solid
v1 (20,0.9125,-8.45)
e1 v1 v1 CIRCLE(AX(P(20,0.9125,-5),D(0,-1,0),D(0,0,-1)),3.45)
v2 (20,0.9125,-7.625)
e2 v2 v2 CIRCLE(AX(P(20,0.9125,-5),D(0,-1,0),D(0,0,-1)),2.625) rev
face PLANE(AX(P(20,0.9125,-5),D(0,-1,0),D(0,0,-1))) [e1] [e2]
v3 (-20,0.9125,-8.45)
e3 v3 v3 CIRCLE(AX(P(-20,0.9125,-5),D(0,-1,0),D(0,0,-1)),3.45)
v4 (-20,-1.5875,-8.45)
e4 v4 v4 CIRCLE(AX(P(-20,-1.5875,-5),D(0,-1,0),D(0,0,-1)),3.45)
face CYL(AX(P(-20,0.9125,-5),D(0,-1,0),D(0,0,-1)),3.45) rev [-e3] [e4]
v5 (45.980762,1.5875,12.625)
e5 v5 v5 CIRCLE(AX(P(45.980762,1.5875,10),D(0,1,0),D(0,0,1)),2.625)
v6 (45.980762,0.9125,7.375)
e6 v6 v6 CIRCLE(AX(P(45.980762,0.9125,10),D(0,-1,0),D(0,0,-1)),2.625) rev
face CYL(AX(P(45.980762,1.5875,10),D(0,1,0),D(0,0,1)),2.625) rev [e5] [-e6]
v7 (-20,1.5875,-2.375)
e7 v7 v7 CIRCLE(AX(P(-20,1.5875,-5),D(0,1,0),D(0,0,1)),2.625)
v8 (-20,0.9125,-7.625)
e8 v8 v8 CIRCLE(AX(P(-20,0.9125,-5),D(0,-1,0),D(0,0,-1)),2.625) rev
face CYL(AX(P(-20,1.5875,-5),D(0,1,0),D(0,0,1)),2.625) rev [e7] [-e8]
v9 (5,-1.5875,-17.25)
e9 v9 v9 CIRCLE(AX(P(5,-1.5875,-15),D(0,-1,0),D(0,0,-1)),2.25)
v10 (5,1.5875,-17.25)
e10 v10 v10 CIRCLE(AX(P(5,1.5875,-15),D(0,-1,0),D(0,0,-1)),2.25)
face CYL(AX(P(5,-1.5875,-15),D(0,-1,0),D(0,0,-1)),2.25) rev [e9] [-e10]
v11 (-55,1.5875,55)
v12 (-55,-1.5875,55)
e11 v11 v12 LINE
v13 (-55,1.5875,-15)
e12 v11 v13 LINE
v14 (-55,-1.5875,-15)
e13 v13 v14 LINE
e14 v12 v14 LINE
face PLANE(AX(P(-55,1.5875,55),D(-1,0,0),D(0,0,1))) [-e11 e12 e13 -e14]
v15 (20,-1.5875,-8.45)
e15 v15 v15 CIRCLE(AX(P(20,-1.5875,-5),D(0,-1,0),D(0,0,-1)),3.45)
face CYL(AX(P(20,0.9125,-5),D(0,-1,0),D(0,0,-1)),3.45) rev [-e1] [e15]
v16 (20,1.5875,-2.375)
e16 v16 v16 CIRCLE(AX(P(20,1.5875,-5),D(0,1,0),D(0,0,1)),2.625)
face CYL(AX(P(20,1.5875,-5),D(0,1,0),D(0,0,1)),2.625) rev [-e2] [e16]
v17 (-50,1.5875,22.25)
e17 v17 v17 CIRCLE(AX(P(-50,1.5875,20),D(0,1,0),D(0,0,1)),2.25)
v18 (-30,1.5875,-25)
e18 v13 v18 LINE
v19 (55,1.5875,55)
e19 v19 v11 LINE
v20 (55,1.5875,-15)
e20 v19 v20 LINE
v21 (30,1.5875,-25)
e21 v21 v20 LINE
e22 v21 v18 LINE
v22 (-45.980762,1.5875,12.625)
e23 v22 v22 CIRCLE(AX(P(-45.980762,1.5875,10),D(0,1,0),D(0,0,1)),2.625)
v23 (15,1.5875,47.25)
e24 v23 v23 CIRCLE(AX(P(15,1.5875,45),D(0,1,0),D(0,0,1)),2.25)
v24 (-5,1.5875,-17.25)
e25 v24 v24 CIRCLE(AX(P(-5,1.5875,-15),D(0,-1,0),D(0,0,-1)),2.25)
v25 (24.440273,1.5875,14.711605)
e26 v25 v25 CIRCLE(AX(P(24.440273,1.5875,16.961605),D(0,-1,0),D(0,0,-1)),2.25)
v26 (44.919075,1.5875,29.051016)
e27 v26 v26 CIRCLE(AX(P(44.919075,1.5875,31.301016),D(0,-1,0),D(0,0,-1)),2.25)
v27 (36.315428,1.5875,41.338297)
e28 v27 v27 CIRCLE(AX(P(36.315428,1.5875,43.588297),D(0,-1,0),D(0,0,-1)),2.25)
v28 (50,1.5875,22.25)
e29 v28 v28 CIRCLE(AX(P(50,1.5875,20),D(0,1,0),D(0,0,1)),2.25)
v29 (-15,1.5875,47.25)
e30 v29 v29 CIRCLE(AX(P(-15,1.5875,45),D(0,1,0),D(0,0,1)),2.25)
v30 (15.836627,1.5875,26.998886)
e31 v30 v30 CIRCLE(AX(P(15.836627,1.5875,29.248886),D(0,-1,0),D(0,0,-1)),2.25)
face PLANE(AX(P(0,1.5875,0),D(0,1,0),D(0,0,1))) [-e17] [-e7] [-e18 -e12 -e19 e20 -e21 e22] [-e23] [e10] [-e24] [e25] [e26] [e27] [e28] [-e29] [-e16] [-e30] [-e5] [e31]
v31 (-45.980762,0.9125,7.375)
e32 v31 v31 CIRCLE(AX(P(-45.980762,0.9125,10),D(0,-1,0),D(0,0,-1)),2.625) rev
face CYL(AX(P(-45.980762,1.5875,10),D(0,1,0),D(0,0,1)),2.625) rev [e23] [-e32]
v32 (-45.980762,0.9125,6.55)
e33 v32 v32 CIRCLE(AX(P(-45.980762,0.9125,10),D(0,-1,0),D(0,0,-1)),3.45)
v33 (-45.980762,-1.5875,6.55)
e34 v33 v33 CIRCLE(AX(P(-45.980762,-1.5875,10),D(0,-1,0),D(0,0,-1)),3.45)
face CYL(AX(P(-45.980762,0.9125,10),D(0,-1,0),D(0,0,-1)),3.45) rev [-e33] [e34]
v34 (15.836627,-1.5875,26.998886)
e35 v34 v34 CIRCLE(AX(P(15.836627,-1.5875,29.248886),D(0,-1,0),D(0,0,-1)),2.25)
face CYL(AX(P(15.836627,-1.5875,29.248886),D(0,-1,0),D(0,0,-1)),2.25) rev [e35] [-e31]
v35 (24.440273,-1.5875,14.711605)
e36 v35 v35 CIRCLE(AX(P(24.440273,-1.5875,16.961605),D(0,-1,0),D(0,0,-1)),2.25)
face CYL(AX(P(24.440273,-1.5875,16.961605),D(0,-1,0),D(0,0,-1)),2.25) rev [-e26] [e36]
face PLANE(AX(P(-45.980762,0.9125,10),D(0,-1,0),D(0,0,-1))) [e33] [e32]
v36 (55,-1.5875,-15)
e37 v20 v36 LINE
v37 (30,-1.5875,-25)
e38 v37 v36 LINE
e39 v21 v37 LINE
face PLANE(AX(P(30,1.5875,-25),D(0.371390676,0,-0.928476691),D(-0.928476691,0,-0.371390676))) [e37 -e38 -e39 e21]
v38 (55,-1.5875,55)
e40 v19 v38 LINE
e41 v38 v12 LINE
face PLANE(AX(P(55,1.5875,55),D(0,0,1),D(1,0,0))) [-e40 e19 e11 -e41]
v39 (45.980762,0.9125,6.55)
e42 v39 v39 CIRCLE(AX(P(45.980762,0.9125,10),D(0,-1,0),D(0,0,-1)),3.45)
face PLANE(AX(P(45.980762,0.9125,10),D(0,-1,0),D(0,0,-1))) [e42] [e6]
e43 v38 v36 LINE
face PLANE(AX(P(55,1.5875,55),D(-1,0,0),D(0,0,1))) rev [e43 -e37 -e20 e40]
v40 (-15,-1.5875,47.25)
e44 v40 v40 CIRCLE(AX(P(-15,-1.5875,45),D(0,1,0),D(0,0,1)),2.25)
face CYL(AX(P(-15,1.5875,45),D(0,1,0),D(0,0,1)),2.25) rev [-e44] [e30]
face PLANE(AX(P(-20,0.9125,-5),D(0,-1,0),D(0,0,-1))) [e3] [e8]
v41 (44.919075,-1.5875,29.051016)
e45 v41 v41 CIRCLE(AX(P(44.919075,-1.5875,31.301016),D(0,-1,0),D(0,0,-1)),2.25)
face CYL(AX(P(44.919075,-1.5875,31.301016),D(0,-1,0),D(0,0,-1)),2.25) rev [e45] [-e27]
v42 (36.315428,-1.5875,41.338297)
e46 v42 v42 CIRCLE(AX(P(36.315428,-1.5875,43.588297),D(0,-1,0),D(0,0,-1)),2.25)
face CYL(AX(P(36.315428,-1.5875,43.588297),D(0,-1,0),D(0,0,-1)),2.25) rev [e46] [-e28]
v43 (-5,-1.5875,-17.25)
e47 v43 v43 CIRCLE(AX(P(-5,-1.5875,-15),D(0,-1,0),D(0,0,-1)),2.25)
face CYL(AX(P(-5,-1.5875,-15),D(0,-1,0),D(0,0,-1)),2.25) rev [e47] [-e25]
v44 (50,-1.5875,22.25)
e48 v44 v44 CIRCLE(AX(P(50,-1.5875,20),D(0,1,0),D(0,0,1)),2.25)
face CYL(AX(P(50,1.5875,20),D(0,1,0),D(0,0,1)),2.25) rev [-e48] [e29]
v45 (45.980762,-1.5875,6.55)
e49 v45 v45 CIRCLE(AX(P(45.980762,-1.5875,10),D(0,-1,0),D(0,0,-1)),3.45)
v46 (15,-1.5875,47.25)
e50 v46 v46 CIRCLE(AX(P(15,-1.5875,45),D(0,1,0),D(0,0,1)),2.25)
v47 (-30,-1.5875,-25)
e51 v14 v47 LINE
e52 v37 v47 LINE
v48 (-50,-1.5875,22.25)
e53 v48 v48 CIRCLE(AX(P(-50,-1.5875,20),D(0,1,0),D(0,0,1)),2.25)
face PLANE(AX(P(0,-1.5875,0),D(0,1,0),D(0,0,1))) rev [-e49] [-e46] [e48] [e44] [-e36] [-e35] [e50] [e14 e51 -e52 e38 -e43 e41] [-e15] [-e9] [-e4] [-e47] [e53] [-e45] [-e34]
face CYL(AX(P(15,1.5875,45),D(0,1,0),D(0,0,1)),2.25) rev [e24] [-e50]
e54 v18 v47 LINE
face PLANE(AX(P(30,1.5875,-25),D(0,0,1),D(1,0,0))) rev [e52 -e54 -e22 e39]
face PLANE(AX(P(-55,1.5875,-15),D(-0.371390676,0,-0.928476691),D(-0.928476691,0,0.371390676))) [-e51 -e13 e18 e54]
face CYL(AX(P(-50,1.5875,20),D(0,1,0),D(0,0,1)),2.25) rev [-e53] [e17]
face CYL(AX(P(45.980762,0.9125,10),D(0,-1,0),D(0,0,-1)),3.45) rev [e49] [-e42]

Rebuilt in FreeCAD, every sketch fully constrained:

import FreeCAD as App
import Part
import Sketcher

V = App.Vector
Q = App.Units.Quantity


def add_polygon(sketch, points):
    """Adds a closed chain of lines whose ends are joined by coincident constraints."""
    first, n = sketch.GeometryCount, len(points)
    for a, b in zip(points, points[1:] + points[:1]):
        sketch.addGeometry(Part.LineSegment(App.Vector(*a, 0), App.Vector(*b, 0)), False)
    for i in range(n):
        sketch.addConstraint(Sketcher.Constraint("Coincident", first + i, 2, first + (i + 1) % n, 1))

doc = App.newDocument("Part")
body = doc.addObject("PartDesign::Body", "Body")

# Sketch on XZ plane
sketch1 = doc.addObject("Sketcher::SketchObject", "Sketch")
body.addObject(sketch1)
sketch1.AttachmentSupport = (doc.XZ_Plane, [""])
sketch1.MapMode = "FlatFace"
add_polygon(sketch1, [(-30, -25), (-55, -15), (-55, 55), (55, 55), (55, -15), (30, -25)])  # lines 0-5
sketch1.addConstraint([
    Sketcher.Constraint("Vertical", 1),
    Sketcher.Constraint("Horizontal", 2),
    Sketcher.Constraint("Vertical", 3),
    Sketcher.Constraint("Horizontal", 5),
    Sketcher.Constraint("Symmetric", 0, 2, 3, 2, -2),
    Sketcher.Constraint("Equal", 0, 4),
    Sketcher.Constraint("DistanceX", 2, 1, 2, 2, Q("110 mm")),
    Sketcher.Constraint("DistanceX", 5, 2, 5, 1, Q("60 mm")),
    Sketcher.Constraint("DistanceY", 1, 1, 1, 2, Q("70 mm")),
    Sketcher.Constraint("DistanceY", 0, 2, -1, 1, Q("15 mm")),
    Sketcher.Constraint("DistanceY", 4, 2, -1, 1, Q("25 mm")),
])
pad1 = doc.addObject("PartDesign::Pad", "Pad")
body.addObject(pad1)
pad1.Profile = sketch1
pad1.Length = 3.175
pad1.Midplane = True

# Sketch on XZ plane
sketch2 = doc.addObject("Sketcher::SketchObject", "Sketch001")
body.addObject(sketch2)
sketch2.AttachmentSupport = (doc.XZ_Plane, [""])
sketch2.MapMode = "FlatFace"
sketch2.AttachmentOffset = App.Placement(V(0, 0, -1.5875), App.Rotation())
sketch2.addGeometry([
    Part.Circle(V(-20, -5, 0), V(0, 0, 1), 2.625),
    Part.Circle(V(20, -5, 0), V(0, 0, 1), 2.625),
    Part.Circle(V(45.980762, 10, 0), V(0, 0, 1), 2.625),
    Part.Circle(V(-45.980762, 10, 0), V(0, 0, 1), 2.625),
], False)
sketch2.addConstraint([
    Sketcher.Constraint("Equal", 0, 1),
    Sketcher.Constraint("Equal", 1, 2),
    Sketcher.Constraint("Equal", 2, 3),
    Sketcher.Constraint("Symmetric", 0, 3, 1, 3, -2),
    Sketcher.Constraint("Symmetric", 2, 3, 3, 3, -2),
    Sketcher.Constraint("Diameter", 0, Q("5.25 mm")),
    Sketcher.Constraint("DistanceX", 0, 3, -1, 1, Q("20 mm")),
    Sketcher.Constraint("DistanceY", 0, 3, -1, 1, Q("5 mm")),
    Sketcher.Constraint("DistanceY", -1, 1, 2, 3, Q("10 mm")),
    Sketcher.Constraint("DistanceX", -1, 1, 2, 3, Q("45.980762 mm")),
])
doc.recompute()
hole = doc.addObject("PartDesign::Hole", "Hole")
body.addObject(hole)
hole.Profile = sketch2
hole.ThreadType = "None"
hole.Diameter = 5.25
hole.DepthType = "ThroughAll"
hole.Reversed = True

# Sketch on XZ plane
sketch3 = doc.addObject("Sketcher::SketchObject", "Sketch002")
body.addObject(sketch3)
sketch3.AttachmentSupport = (doc.XZ_Plane, [""])
sketch3.MapMode = "FlatFace"
sketch3.AttachmentOffset = App.Placement(V(0, 0, 1.5875), App.Rotation())
sketch3.addGeometry([
    Part.Circle(V(-45.980762, 10, 0), V(0, 0, 1), 3.45),
    Part.Circle(V(-20, -5, 0), V(0, 0, 1), 3.45),
    Part.Circle(V(20, -5, 0), V(0, 0, 1), 3.45),
    Part.Circle(V(45.980762, 10, 0), V(0, 0, 1), 3.45),
], False)
sketch3.addConstraint([
    Sketcher.Constraint("Equal", 0, 1),
    Sketcher.Constraint("Equal", 1, 2),
    Sketcher.Constraint("Equal", 2, 3),
    Sketcher.Constraint("Symmetric", 1, 3, 2, 3, -2),
    Sketcher.Constraint("Symmetric", 0, 3, 3, 3, -2),
    Sketcher.Constraint("Diameter", 0, Q("6.9 mm")),
    Sketcher.Constraint("DistanceY", -1, 1, 0, 3, Q("10 mm")),
    Sketcher.Constraint("DistanceX", 1, 3, -1, 1, Q("20 mm")),
    Sketcher.Constraint("DistanceY", 1, 3, -1, 1, Q("5 mm")),
    Sketcher.Constraint("DistanceX", 0, 3, -1, 1, Q("45.980762 mm")),
])
pocket1 = doc.addObject("PartDesign::Pocket", "Pocket")
body.addObject(pocket1)
pocket1.Profile = sketch3
pocket1.Length = 2.5

# Sketch on XZ plane
sketch4 = doc.addObject("Sketcher::SketchObject", "Sketch003")
body.addObject(sketch4)
sketch4.AttachmentSupport = (doc.XZ_Plane, [""])
sketch4.MapMode = "FlatFace"
sketch4.AttachmentOffset = App.Placement(V(0, 0, 1.5875), App.Rotation())
sketch4.addGeometry([
    Part.Circle(V(24.440273, 16.961605, 0), V(0, 0, 1), 2.25),
    Part.Circle(V(15.836627, 29.248886, 0), V(0, 0, 1), 2.25),
    Part.Circle(V(44.919075, 31.301016, 0), V(0, 0, 1), 2.25),
    Part.Circle(V(36.315428, 43.588297, 0), V(0, 0, 1), 2.25),
], False)
sketch4.addConstraint([
    Sketcher.Constraint("Equal", 0, 1),
    Sketcher.Constraint("Equal", 1, 2),
    Sketcher.Constraint("Equal", 2, 3),
    Sketcher.Constraint("Diameter", 0, Q("4.5 mm")),
    Sketcher.Constraint("DistanceX", 0, 3, 2, 3, Q("20.478801 mm")),
    Sketcher.Constraint("DistanceX", 1, 3, 3, 3, Q("20.478801 mm")),
    Sketcher.Constraint("DistanceX", -1, 1, 3, 3, Q("36.315428 mm")),
    Sketcher.Constraint("DistanceY", 0, 3, 1, 3, Q("12.287281 mm")),
    Sketcher.Constraint("DistanceY", 0, 3, 2, 3, Q("14.339411 mm")),
    Sketcher.Constraint("DistanceY", 2, 3, 3, 3, Q("12.287281 mm")),
    Sketcher.Constraint("DistanceX", -1, 1, 0, 3, Q("24.440273 mm")),
    Sketcher.Constraint("DistanceY", -1, 1, 0, 3, Q("16.961605 mm")),
])
doc.recompute()
hole2 = doc.addObject("PartDesign::Hole", "Hole001")
body.addObject(hole2)
hole2.Profile = sketch4
hole2.ThreadType = "None"
hole2.Diameter = 4.5
hole2.DepthType = "ThroughAll"

# Sketch on XZ plane
sketch5 = doc.addObject("Sketcher::SketchObject", "Sketch004")
body.addObject(sketch5)
sketch5.AttachmentSupport = (doc.XZ_Plane, [""])
sketch5.MapMode = "FlatFace"
sketch5.AttachmentOffset = App.Placement(V(0, 0, 1.5875), App.Rotation())
sketch5.addGeometry([
    Part.Circle(V(5, -15, 0), V(0, 0, 1), 2.25),
    Part.Circle(V(-5, -15, 0), V(0, 0, 1), 2.25),
], False)
sketch5.addConstraint([
    Sketcher.Constraint("Equal", 0, 1),
    Sketcher.Constraint("Symmetric", 0, 3, 1, 3, -2),
    Sketcher.Constraint("Diameter", 0, Q("4.5 mm")),
    Sketcher.Constraint("DistanceX", -1, 1, 0, 3, Q("5 mm")),
    Sketcher.Constraint("DistanceY", 0, 3, -1, 1, Q("15 mm")),
])
doc.recompute()
hole3 = doc.addObject("PartDesign::Hole", "Hole002")
body.addObject(hole3)
hole3.Profile = sketch5
hole3.ThreadType = "None"
hole3.Diameter = 4.5
hole3.DepthType = "ThroughAll"

# Sketch on XZ plane
sketch6 = doc.addObject("Sketcher::SketchObject", "Sketch005")
body.addObject(sketch6)
sketch6.AttachmentSupport = (doc.XZ_Plane, [""])
sketch6.MapMode = "FlatFace"
sketch6.AttachmentOffset = App.Placement(V(0, 0, -1.5875), App.Rotation())
sketch6.addGeometry([
    Part.Circle(V(-15, 45, 0), V(0, 0, 1), 2.25),
    Part.Circle(V(15, 45, 0), V(0, 0, 1), 2.25),
], False)
sketch6.addConstraint([
    Sketcher.Constraint("Equal", 0, 1),
    Sketcher.Constraint("Symmetric", 0, 3, 1, 3, -2),
    Sketcher.Constraint("Diameter", 0, Q("4.5 mm")),
    Sketcher.Constraint("DistanceX", 0, 3, -1, 1, Q("15 mm")),
    Sketcher.Constraint("DistanceY", -1, 1, 0, 3, Q("45 mm")),
])
doc.recompute()
hole4 = doc.addObject("PartDesign::Hole", "Hole003")
body.addObject(hole4)
hole4.Profile = sketch6
hole4.ThreadType = "None"
hole4.Diameter = 4.5
hole4.DepthType = "ThroughAll"
hole4.Reversed = True

# Sketch on XZ plane
sketch7 = doc.addObject("Sketcher::SketchObject", "Sketch006")
body.addObject(sketch7)
sketch7.AttachmentSupport = (doc.XZ_Plane, [""])
sketch7.MapMode = "FlatFace"
sketch7.AttachmentOffset = App.Placement(V(0, 0, -1.5875), App.Rotation())
sketch7.addGeometry([
    Part.Circle(V(50, 20, 0), V(0, 0, 1), 2.25),
    Part.Circle(V(-50, 20, 0), V(0, 0, 1), 2.25),
], False)
sketch7.addConstraint([
    Sketcher.Constraint("Equal", 0, 1),
    Sketcher.Constraint("Symmetric", 0, 3, 1, 3, -2),
    Sketcher.Constraint("Diameter", 0, Q("4.5 mm")),
    Sketcher.Constraint("DistanceX", -1, 1, 0, 3, Q("50 mm")),
    Sketcher.Constraint("DistanceY", -1, 1, 0, 3, Q("20 mm")),
])
doc.recompute()
hole5 = doc.addObject("PartDesign::Hole", "Hole004")
body.addObject(hole5)
hole5.Profile = sketch7
hole5.ThreadType = "None"
hole5.Diameter = 4.5
hole5.DepthType = "ThroughAll"
hole5.Reversed = True

doc.recompute()
